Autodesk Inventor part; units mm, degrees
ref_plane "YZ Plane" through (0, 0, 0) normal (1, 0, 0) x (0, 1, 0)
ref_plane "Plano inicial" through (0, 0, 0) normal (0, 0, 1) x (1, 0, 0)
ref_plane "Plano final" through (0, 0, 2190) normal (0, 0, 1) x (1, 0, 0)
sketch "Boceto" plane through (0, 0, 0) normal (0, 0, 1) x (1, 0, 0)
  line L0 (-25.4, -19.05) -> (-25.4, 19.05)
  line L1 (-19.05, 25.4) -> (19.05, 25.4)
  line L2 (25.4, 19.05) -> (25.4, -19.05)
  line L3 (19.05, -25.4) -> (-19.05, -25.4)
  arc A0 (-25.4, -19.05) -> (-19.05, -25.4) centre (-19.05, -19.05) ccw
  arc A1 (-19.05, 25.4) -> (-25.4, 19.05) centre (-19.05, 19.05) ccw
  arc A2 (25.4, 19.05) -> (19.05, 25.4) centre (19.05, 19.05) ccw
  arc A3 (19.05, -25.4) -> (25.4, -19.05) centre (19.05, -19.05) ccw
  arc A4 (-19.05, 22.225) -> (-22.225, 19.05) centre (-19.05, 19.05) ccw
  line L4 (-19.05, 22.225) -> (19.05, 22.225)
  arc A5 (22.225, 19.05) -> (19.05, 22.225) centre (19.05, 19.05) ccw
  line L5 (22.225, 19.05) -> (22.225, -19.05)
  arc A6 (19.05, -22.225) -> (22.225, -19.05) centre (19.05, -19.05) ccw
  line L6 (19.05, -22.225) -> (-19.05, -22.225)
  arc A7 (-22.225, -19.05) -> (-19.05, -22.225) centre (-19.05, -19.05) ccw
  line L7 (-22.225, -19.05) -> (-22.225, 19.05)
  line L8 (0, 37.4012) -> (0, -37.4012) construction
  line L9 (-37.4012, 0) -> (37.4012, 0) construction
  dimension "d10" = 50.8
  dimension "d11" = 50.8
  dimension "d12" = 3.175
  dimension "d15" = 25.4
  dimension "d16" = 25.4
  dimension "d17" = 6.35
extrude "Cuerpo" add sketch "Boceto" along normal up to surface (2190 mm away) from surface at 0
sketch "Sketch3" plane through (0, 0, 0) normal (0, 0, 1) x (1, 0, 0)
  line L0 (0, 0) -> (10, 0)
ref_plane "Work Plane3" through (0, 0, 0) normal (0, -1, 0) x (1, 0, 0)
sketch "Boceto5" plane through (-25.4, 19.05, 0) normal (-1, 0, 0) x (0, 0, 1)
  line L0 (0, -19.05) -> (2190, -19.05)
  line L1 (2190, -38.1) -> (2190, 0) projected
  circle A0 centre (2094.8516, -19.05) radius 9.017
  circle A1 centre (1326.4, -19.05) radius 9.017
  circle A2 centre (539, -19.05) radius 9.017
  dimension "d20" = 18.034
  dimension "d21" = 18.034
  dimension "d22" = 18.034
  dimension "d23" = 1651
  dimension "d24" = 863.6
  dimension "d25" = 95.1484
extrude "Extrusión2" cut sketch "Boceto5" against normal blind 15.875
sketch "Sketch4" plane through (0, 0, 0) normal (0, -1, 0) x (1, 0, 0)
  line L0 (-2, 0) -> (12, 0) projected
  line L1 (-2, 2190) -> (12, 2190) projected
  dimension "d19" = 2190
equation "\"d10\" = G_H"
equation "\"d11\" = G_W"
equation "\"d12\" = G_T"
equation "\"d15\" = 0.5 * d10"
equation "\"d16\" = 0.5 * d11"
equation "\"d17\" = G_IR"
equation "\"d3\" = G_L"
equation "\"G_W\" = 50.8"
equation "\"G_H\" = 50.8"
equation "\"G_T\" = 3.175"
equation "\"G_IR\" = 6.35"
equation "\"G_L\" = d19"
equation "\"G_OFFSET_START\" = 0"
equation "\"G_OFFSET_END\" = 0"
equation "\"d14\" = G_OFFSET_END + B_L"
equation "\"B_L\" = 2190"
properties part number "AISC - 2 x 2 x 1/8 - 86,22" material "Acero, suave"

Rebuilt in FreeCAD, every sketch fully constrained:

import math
import FreeCAD as App
import Part
import Sketcher
from FreeCAD import Vector
Q = App.Units.Quantity

doc = App.newDocument("Part")
body = doc.addObject("PartDesign::Body", "Body")

# Sketch on XY plane
sketch1 = body.newObject("Sketcher::SketchObject", "Sketch")
sketch1.AttachmentSupport = (doc.getObject("XY_Plane"), [""])
sketch1.MapMode = "FlatFace"
sketch1.addGeometry(Part.LineSegment(Vector(-25.4, 19.05, 0), Vector(-25.4, -19.05, 0)), False)
sketch1.addGeometry(Part.ArcOfCircle(Part.Circle(Vector(-19.05, -19.05, 0), Vector(0, 0, 1), 6.35), math.radians(180), math.radians(270)), False)
sketch1.addGeometry(Part.LineSegment(Vector(-19.05, -25.4, 0), Vector(19.05, -25.4, 0)), False)
sketch1.addGeometry(Part.ArcOfCircle(Part.Circle(Vector(19.05, -19.05, 0), Vector(0, 0, 1), 6.35), math.radians(-90), math.radians(0)), False)
sketch1.addGeometry(Part.LineSegment(Vector(25.4, -19.05, 0), Vector(25.4, 19.05, 0)), False)
sketch1.addGeometry(Part.ArcOfCircle(Part.Circle(Vector(19.05, 19.05, 0), Vector(0, 0, 1), 6.35), math.radians(0), math.radians(90)), False)
sketch1.addGeometry(Part.LineSegment(Vector(19.05, 25.4, 0), Vector(-19.05, 25.4, 0)), False)
sketch1.addGeometry(Part.ArcOfCircle(Part.Circle(Vector(-19.05, 19.05, 0), Vector(0, 0, 1), 6.35), math.radians(90), math.radians(180)), False)
sketch1.addGeometry(Part.ArcOfCircle(Part.Circle(Vector(-19.05, 19.05, 0), Vector(0, 0, 1), 3.175), math.radians(90), math.radians(180)), False)
sketch1.addGeometry(Part.LineSegment(Vector(-19.05, 22.225, 0), Vector(19.05, 22.225, 0)), False)
sketch1.addGeometry(Part.ArcOfCircle(Part.Circle(Vector(19.05, 19.05, 0), Vector(0, 0, 1), 3.175), math.radians(0), math.radians(90)), False)
sketch1.addGeometry(Part.LineSegment(Vector(22.225, 19.05, 0), Vector(22.225, -19.05, 0)), False)
sketch1.addGeometry(Part.ArcOfCircle(Part.Circle(Vector(19.05, -19.05, 0), Vector(0, 0, 1), 3.175), math.radians(-90), math.radians(0)), False)
sketch1.addGeometry(Part.LineSegment(Vector(19.05, -22.225, 0), Vector(-19.05, -22.225, 0)), False)
sketch1.addGeometry(Part.ArcOfCircle(Part.Circle(Vector(-19.05, -19.05, 0), Vector(0, 0, 1), 3.175), math.radians(180), math.radians(270)), False)
sketch1.addGeometry(Part.LineSegment(Vector(-22.225, -19.05, 0), Vector(-22.225, 19.05, 0)), False)
sketch1.addConstraint(Sketcher.Constraint("Tangent", 0, 2, 1, 1))
sketch1.addConstraint(Sketcher.Constraint("Tangent", 1, 2, 2, 1))
sketch1.addConstraint(Sketcher.Constraint("Tangent", 2, 2, 3, 1))
sketch1.addConstraint(Sketcher.Constraint("Tangent", 3, 2, 4, 1))
sketch1.addConstraint(Sketcher.Constraint("Tangent", 4, 2, 5, 1))
sketch1.addConstraint(Sketcher.Constraint("Tangent", 5, 2, 6, 1))
sketch1.addConstraint(Sketcher.Constraint("Tangent", 6, 2, 7, 1))
sketch1.addConstraint(Sketcher.Constraint("Tangent", 7, 2, 0, 1))
sketch1.addConstraint(Sketcher.Constraint("Tangent", 8, 1, 9, 1))
sketch1.addConstraint(Sketcher.Constraint("Tangent", 9, 2, 10, 2))
sketch1.addConstraint(Sketcher.Constraint("Tangent", 10, 1, 11, 1))
sketch1.addConstraint(Sketcher.Constraint("Tangent", 11, 2, 12, 2))
sketch1.addConstraint(Sketcher.Constraint("Tangent", 12, 1, 13, 1))
sketch1.addConstraint(Sketcher.Constraint("Tangent", 13, 2, 14, 2))
sketch1.addConstraint(Sketcher.Constraint("Tangent", 14, 1, 15, 1))
sketch1.addConstraint(Sketcher.Constraint("Tangent", 15, 2, 8, 2))
sketch1.addConstraint(Sketcher.Constraint("Vertical", 0))
sketch1.addConstraint(Sketcher.Constraint("Horizontal", 2))
sketch1.addConstraint(Sketcher.Constraint("Vertical", 4))
sketch1.addConstraint(Sketcher.Constraint("Horizontal", 6))
sketch1.addConstraint(Sketcher.Constraint("Horizontal", 9))
sketch1.addConstraint(Sketcher.Constraint("Vertical", 11))
sketch1.addConstraint(Sketcher.Constraint("Horizontal", 13))
sketch1.addConstraint(Sketcher.Constraint("Vertical", 15))
sketch1.addConstraint(Sketcher.Constraint("Coincident", 8, 3, 7, 3))
sketch1.addConstraint(Sketcher.Constraint("Coincident", 10, 3, 5, 3))
sketch1.addConstraint(Sketcher.Constraint("Coincident", 12, 3, 3, 3))
sketch1.addConstraint(Sketcher.Constraint("Equal", 1, 3))
sketch1.addConstraint(Sketcher.Constraint("Equal", 3, 5))
sketch1.addConstraint(Sketcher.Constraint("Equal", 5, 7))
sketch1.addConstraint(Sketcher.Constraint("Equal", 12, 14))
sketch1.addConstraint(Sketcher.Constraint("Symmetric", 1, 3, 5, 3, -1, 1))
sketch1.addConstraint(Sketcher.Constraint("Equal", 13, 0))
sketch1.addConstraint(Sketcher.Constraint("Radius", 1, Q("0.25 in")))
sketch1.addConstraint(Sketcher.Constraint("DistanceX", 0, 2, -1, 1, Q("1 in")))
sketch1.addConstraint(Sketcher.Constraint("Radius", 8, Q("0.125 in")))
pad1 = body.newObject("PartDesign::Pad", "Pad")
pad1.Profile = sketch1
pad1.Length = 2190

# Sketch on YZ plane
sketch2 = body.newObject("Sketcher::SketchObject", "Sketch001")
sketch2.AttachmentSupport = (doc.getObject("YZ_Plane"), [""])
sketch2.MapMode = "FlatFace"
sketch2.AttachmentOffset = App.Placement(Vector(0, 0, -1 * 25.4), App.Rotation())
sketch2.addGeometry(Part.Circle(Vector(0, 539, 0), Vector(0, 0, 1), 9.017), False)
sketch2.addGeometry(Part.Circle(Vector(0, 2094.8516, 0), Vector(0, 0, 1), 9.017), False)
sketch2.addGeometry(Part.Circle(Vector(0, 1326.4, 0), Vector(0, 0, 1), 9.017), False)
sketch2.addConstraint(Sketcher.Constraint("Equal", 0, 1))
sketch2.addConstraint(Sketcher.Constraint("Equal", 1, 2))
sketch2.addConstraint(Sketcher.Constraint("PointOnObject", 0, 3, -2))
sketch2.addConstraint(Sketcher.Constraint("PointOnObject", 1, 3, -2))
sketch2.addConstraint(Sketcher.Constraint("PointOnObject", 2, 3, -2))
sketch2.addConstraint(Sketcher.Constraint("Diameter", 0, Q("0.71 in")))
sketch2.addConstraint(Sketcher.Constraint("DistanceY", 0, 3, 2, 3, Q("31 in")))
sketch2.addConstraint(Sketcher.Constraint("DistanceY", 0, 3, 1, 3, Q("61.254 in")))
sketch2.addConstraint(Sketcher.Constraint("DistanceY", -1, 1, 0, 3, 539.0))
pocket1 = body.newObject("PartDesign::Pocket", "Pocket")
pocket1.Profile = sketch2
pocket1.Length = Q("0.625 in")
pocket1.Reversed = True

doc.recompute()
